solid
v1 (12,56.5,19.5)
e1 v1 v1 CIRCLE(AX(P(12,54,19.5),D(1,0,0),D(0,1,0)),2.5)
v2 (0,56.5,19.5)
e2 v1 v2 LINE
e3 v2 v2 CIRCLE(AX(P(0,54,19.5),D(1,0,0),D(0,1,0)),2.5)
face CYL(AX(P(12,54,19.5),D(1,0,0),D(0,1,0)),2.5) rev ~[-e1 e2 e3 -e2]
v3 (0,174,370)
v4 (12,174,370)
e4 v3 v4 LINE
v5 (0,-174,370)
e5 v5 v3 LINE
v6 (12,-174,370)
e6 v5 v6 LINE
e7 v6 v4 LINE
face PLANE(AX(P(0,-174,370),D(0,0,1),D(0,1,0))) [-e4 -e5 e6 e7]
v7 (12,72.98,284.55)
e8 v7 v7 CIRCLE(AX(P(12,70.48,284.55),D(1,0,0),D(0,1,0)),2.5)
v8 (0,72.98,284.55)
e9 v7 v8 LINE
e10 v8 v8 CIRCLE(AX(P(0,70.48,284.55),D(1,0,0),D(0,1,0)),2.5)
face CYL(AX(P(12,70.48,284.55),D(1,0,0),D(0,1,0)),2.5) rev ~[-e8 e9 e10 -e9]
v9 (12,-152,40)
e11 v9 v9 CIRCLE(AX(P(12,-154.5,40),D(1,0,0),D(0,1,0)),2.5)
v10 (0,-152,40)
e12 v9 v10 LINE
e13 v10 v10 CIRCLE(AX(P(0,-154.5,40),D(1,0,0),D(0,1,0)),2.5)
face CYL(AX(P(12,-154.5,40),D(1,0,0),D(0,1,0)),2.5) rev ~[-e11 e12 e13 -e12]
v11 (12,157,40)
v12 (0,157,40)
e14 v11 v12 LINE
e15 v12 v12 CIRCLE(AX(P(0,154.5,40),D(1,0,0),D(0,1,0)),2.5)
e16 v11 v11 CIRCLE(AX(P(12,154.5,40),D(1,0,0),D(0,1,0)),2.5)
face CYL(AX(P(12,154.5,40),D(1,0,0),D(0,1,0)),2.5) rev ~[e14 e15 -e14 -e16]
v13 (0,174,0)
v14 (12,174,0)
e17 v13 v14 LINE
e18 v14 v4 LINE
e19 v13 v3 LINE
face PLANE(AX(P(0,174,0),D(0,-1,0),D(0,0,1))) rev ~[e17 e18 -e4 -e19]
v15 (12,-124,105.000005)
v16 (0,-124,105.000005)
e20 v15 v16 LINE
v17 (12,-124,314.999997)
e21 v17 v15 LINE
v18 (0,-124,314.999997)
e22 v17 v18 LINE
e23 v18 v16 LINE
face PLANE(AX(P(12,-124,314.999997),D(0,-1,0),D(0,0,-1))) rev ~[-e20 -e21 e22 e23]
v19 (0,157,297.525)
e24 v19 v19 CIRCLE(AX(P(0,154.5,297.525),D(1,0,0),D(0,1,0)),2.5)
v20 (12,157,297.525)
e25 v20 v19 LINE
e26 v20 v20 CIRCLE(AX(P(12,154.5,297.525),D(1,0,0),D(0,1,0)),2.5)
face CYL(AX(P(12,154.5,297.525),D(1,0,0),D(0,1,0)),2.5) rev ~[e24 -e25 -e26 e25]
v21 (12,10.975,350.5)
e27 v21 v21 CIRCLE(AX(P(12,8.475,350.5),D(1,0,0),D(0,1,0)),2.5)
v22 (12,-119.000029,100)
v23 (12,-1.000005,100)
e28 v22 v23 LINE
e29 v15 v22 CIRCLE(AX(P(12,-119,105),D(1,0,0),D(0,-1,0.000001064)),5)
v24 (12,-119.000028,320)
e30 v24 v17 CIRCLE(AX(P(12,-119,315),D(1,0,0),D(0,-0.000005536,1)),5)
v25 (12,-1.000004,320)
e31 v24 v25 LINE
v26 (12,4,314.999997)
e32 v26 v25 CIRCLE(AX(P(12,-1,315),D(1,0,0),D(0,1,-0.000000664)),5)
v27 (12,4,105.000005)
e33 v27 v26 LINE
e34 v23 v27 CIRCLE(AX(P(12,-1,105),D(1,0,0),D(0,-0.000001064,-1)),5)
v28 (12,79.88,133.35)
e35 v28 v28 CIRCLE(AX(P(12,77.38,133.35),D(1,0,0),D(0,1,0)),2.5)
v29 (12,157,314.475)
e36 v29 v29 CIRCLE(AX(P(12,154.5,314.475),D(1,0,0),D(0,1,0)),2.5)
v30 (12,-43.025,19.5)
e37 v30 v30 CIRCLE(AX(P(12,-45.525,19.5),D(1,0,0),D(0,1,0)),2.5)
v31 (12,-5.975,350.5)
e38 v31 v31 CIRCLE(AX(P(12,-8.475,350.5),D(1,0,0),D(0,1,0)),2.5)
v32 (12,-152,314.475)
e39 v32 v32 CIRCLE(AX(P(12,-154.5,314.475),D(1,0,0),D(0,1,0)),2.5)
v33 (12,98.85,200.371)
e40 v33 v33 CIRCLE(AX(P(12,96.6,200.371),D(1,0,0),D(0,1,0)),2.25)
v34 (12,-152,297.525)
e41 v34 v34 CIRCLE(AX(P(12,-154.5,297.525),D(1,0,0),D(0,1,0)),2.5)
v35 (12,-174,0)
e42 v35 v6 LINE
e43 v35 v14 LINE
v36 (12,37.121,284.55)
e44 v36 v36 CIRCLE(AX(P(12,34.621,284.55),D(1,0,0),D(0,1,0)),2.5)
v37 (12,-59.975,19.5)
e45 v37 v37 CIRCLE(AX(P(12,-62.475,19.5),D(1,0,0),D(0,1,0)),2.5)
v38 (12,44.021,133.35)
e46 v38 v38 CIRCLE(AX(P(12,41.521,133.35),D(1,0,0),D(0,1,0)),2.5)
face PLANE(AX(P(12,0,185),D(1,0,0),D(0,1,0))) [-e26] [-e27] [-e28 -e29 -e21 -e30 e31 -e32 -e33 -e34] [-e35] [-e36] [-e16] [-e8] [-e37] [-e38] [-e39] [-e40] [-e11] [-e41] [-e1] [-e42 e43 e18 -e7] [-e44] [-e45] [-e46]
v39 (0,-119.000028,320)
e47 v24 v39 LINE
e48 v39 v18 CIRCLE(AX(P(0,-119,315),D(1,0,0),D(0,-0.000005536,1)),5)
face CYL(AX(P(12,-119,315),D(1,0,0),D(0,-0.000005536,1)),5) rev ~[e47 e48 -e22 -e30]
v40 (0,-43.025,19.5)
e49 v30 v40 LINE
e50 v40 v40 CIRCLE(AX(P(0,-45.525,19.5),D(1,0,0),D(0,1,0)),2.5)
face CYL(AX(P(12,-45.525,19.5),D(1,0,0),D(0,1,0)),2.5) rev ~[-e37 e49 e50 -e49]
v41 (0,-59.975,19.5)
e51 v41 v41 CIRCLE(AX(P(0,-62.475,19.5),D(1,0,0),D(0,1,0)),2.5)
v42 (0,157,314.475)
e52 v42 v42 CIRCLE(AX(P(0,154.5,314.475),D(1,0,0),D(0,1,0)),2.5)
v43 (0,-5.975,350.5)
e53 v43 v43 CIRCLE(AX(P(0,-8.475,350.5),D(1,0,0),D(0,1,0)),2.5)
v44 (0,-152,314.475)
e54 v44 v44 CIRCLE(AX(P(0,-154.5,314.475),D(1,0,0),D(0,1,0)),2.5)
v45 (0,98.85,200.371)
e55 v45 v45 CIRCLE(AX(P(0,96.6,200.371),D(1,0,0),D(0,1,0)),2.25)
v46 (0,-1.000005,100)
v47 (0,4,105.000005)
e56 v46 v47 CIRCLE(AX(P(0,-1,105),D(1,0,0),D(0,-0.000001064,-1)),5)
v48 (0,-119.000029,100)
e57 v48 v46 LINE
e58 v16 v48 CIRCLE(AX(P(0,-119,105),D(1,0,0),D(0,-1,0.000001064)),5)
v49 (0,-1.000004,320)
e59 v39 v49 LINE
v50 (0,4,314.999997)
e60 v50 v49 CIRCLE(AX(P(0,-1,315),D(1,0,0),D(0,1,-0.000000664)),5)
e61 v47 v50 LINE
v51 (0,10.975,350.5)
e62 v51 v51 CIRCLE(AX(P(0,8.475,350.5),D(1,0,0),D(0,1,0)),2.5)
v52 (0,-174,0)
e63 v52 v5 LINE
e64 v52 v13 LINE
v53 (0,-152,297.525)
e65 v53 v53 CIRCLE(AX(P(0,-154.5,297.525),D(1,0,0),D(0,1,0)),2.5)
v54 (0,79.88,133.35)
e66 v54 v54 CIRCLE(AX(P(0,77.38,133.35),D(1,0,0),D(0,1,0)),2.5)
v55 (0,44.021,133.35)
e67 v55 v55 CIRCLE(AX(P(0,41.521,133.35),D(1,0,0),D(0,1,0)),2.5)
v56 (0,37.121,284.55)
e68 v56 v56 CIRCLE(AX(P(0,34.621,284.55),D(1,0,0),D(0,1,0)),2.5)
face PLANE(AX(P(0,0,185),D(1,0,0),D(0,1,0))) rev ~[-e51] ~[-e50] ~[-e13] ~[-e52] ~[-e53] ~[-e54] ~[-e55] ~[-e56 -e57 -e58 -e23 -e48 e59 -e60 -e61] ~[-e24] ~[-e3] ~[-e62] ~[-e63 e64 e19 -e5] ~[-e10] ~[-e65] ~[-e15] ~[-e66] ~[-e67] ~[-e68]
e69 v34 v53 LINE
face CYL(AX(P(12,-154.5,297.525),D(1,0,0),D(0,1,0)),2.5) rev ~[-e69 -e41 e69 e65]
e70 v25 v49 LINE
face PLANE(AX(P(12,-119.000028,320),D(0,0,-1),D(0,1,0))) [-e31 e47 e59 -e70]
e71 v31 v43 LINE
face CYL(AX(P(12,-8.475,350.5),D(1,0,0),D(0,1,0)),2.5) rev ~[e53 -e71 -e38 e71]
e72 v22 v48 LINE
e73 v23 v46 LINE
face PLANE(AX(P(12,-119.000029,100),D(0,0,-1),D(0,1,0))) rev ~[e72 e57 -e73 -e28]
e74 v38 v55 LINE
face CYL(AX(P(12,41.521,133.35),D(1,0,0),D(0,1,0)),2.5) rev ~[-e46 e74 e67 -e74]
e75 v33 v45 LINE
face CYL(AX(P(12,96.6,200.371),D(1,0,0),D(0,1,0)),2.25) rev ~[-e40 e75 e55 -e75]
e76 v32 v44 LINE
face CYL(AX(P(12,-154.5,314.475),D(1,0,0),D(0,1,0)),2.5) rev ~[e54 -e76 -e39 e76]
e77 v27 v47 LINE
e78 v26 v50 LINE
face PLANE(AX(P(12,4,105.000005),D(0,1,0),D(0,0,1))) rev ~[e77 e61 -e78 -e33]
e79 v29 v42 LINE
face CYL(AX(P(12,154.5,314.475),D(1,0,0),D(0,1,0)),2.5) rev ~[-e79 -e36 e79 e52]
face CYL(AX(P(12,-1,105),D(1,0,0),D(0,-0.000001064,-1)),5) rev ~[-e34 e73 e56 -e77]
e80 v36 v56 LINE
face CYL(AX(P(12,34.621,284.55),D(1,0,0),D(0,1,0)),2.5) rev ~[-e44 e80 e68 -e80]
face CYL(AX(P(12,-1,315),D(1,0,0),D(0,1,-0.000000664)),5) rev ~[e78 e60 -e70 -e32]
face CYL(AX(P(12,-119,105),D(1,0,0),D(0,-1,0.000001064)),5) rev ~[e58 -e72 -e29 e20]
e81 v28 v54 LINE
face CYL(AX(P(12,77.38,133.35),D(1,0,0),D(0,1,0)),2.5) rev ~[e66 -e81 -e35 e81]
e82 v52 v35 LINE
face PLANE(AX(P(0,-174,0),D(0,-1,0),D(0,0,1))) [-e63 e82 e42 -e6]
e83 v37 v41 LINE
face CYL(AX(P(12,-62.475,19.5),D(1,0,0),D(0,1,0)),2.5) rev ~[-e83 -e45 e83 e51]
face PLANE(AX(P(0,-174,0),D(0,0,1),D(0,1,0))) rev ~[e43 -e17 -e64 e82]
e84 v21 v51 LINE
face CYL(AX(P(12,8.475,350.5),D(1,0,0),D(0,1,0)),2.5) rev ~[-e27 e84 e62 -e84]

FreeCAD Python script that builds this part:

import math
import FreeCAD as App
import Part
import Sketcher

doc = App.newDocument("Part")
body = doc.addObject("PartDesign::Body", "Body")

sketch1 = body.newObject("Sketcher::SketchObject", "Sketch")
sketch1.AttachmentSupport = (doc.getObject("YZ_Plane"), [""])
sketch1.MapMode = "FlatFace"
sketch1.addGeometry([
    Part.LineSegment(App.Vector(-174, 370, 0), App.Vector(-174, 0, 0)),
    Part.LineSegment(App.Vector(-174, 0, 0), App.Vector(174, 0, 0)),
    Part.LineSegment(App.Vector(174, 0, 0), App.Vector(174, 370, 0)),
    Part.LineSegment(App.Vector(174, 370, 0), App.Vector(-174, 370, 0)),
], False)
sketch1.addConstraint([
    Sketcher.Constraint("Coincident", 0, 2, 1, 1),
    Sketcher.Constraint("Coincident", 1, 2, 2, 1),
    Sketcher.Constraint("Coincident", 2, 2, 3, 1),
    Sketcher.Constraint("Coincident", 3, 2, 0, 1),
    Sketcher.Constraint("Vertical", 0),
    Sketcher.Constraint("Horizontal", 1),
    Sketcher.Constraint("Vertical", 2),
    Sketcher.Constraint("Horizontal", 3),
    Sketcher.Constraint("Symmetric", 0, 2, 1, 2, -1, 1),
    Sketcher.Constraint("DistanceX", 1, 1, 1, 2, 348.0),
    Sketcher.Constraint("DistanceY", 0, 2, 0, 1, 370.0),
])
pad1 = body.newObject("PartDesign::Pad", "Pad")
pad1.Profile = sketch1
pad1.Length = 12

sketch2 = body.newObject("Sketcher::SketchObject", "Sketch001")
sketch2.AttachmentSupport = (doc.getObject("YZ_Plane"), [""])
sketch2.MapMode = "FlatFace"
sketch2.AttachmentOffset = App.Placement(App.Vector(0, 0, 12), App.Rotation())
sketch2.addGeometry([
    Part.LineSegment(App.Vector(-124, 315, 0), App.Vector(-124, 105, 0)),
    Part.ArcOfCircle(Part.Circle(App.Vector(-119, 105, 0), App.Vector(0, 0, 1), 5), math.radians(180), math.radians(270)),
    Part.LineSegment(App.Vector(-119, 100, 0), App.Vector(-1, 100, 0)),
    Part.ArcOfCircle(Part.Circle(App.Vector(-1, 105, 0), App.Vector(0, 0, 1), 5), math.radians(-90), math.radians(0)),
    Part.LineSegment(App.Vector(4, 105, 0), App.Vector(4, 315, 0)),
    Part.ArcOfCircle(Part.Circle(App.Vector(-1, 315, 0), App.Vector(0, 0, 1), 5), math.radians(0), math.radians(90)),
    Part.LineSegment(App.Vector(-1, 320, 0), App.Vector(-119, 320, 0)),
    Part.ArcOfCircle(Part.Circle(App.Vector(-119, 315, 0), App.Vector(0, 0, 1), 5), math.radians(90), math.radians(180)),
], False)
sketch2.addConstraint([
    Sketcher.Constraint("Tangent", 0, 2, 1, 1),
    Sketcher.Constraint("Coincident", 1, 2, 2, 1),
    Sketcher.Constraint("Tangent", 2, 2, 3, 1),
    Sketcher.Constraint("Tangent", 3, 2, 4, 1),
    Sketcher.Constraint("Tangent", 4, 2, 5, 1),
    Sketcher.Constraint("Tangent", 5, 2, 6, 1),
    Sketcher.Constraint("Coincident", 6, 2, 7, 1),
    Sketcher.Constraint("Tangent", 7, 2, 0, 1),
    Sketcher.Constraint("Vertical", 0),
    Sketcher.Constraint("Horizontal", 2),
    Sketcher.Constraint("Vertical", 4),
    Sketcher.Constraint("Horizontal", 6),
    Sketcher.Constraint("Equal", 1, 3),
    Sketcher.Constraint("Equal", 3, 5),
    Sketcher.Constraint("Equal", 5, 7),
    Sketcher.Constraint("Vertical", 1, 2, 6, 2),
    Sketcher.Constraint("Radius", 1, 5.0),
    Sketcher.Constraint("DistanceX", 1, 3, -1, 1, 119.0),
    Sketcher.Constraint("DistanceY", -1, 1, 1, 3, 105.0),
    Sketcher.Constraint("DistanceX", 3, 3, -1, 1, 1.0),
    Sketcher.Constraint("DistanceY", -1, 1, 5, 3, 315.0),
    Sketcher.Constraint("DistanceX", 2, 1, 2, 2, 118.000024),
])
pocket1 = body.newObject("PartDesign::Pocket", "Pocket")
pocket1.Profile = sketch2
pocket1.Type = "ThroughAll"

sketch3 = body.newObject("Sketcher::SketchObject", "Sketch002")
sketch3.AttachmentSupport = (doc.getObject("YZ_Plane"), [""])
sketch3.MapMode = "FlatFace"
sketch3.AttachmentOffset = App.Placement(App.Vector(0, 0, 12), App.Rotation())
sketch3.addGeometry([
    Part.Circle(App.Vector(-154.5, 314.5, 0), App.Vector(0, 0, 1), 2.5),
    Part.Circle(App.Vector(-154.5, 40, 0), App.Vector(0, 0, 1), 2.5),
    Part.Circle(App.Vector(-62.5, 19.5, 0), App.Vector(0, 0, 1), 2.5),
    Part.Circle(App.Vector(-8.5, 350.5, 0), App.Vector(0, 0, 1), 2.5),
    Part.Circle(App.Vector(-154.5, 297.5, 0), App.Vector(0, 0, 1), 2.5),
    Part.Circle(App.Vector(-45.5, 19.5, 0), App.Vector(0, 0, 1), 2.5),
    Part.Circle(App.Vector(154.5, 314.5, 0), App.Vector(0, 0, 1), 2.5),
    Part.Circle(App.Vector(154.5, 297.5, 0), App.Vector(0, 0, 1), 2.5),
    Part.Circle(App.Vector(154.5, 40, 0), App.Vector(0, 0, 1), 2.5),
    Part.Circle(App.Vector(54, 19.5, 0), App.Vector(0, 0, 1), 2.5),
    Part.Circle(App.Vector(8.5, 350.5, 0), App.Vector(0, 0, 1), 2.5),
], False)
sketch3.addConstraint([
    Sketcher.Constraint("Equal", 0, 1),
    Sketcher.Constraint("Equal", 1, 2),
    Sketcher.Constraint("Equal", 2, 3),
    Sketcher.Constraint("Equal", 3, 4),
    Sketcher.Constraint("Equal", 4, 5),
    Sketcher.Constraint("Equal", 5, 6),
    Sketcher.Constraint("Equal", 6, 7),
    Sketcher.Constraint("Equal", 7, 8),
    Sketcher.Constraint("Equal", 8, 9),
    Sketcher.Constraint("Equal", 9, 10),
    Sketcher.Constraint("Symmetric", 0, 3, 6, 3, -2),
    Sketcher.Constraint("Symmetric", 4, 3, 7, 3, -2),
    Sketcher.Constraint("Symmetric", 1, 3, 8, 3, -2),
    Sketcher.Constraint("Symmetric", 3, 3, 10, 3, -2),
    Sketcher.Constraint("Horizontal", 2, 3, 5, 3),
    Sketcher.Constraint("Horizontal", 5, 3, 9, 3),
    Sketcher.Constraint("Vertical", 0, 3, 1, 3),
    Sketcher.Constraint("Vertical", 1, 3, 4, 3),
    Sketcher.Constraint("Diameter", 0, 5.0),
    Sketcher.Constraint("DistanceY", -1, 1, 1, 3, 40.0),
    Sketcher.Constraint("DistanceX", -1, 1, 9, 3, 54.0),
    Sketcher.Constraint("DistanceX", 2, 3, 3, 3, 54.0),
    Sketcher.Constraint("DistanceY", 2, 3, 3, 3, 331.0),
    Sketcher.Constraint("DistanceX", 0, 3, 6, 3, 309.0),
    Sketcher.Constraint("DistanceY", -1, 1, 2, 3, 19.5),
    Sketcher.Constraint("DistanceY", 4, 3, 0, 3, 16.95),
    Sketcher.Constraint("DistanceX", 2, 3, 5, 3, 16.95),
    Sketcher.Constraint("DistanceX", 3, 3, 10, 3, 16.95),
    Sketcher.Constraint("DistanceY", -1, 1, 0, 3, 314.475),
])
pocket2 = body.newObject("PartDesign::Pocket", "Pocket001")
pocket2.Profile = sketch3
pocket2.Type = "ThroughAll"

sketch4 = body.newObject("Sketcher::SketchObject", "Sketch003")
sketch4.AttachmentSupport = (doc.getObject("YZ_Plane"), [""])
sketch4.MapMode = "FlatFace"
sketch4.AttachmentOffset = App.Placement(App.Vector(0, 0, 12), App.Rotation())
sketch4.addGeometry([
    Part.Circle(App.Vector(41.5, 133.3, 0), App.Vector(0, 0, 1), 2.5),
    Part.Circle(App.Vector(77.4, 133.3, 0), App.Vector(0, 0, 1), 2.5),
    Part.Circle(App.Vector(34.6, 284.6, 0), App.Vector(0, 0, 1), 2.5),
    Part.Circle(App.Vector(70.5, 284.6, 0), App.Vector(0, 0, 1), 2.5),
    Part.Circle(App.Vector(96.6, 200.4, 0), App.Vector(0, 0, 1), 2.2),
], False)
sketch4.addConstraint([
    Sketcher.Constraint("Equal", 0, 1),
    Sketcher.Constraint("Equal", 1, 2),
    Sketcher.Constraint("Equal", 2, 3),
    Sketcher.Constraint("Horizontal", 0, 3, 1, 3),
    Sketcher.Constraint("Horizontal", 2, 3, 3, 3),
    Sketcher.Constraint("Diameter", 0, 5.0),
    Sketcher.Constraint("Diameter", 4, 4.5),
    Sketcher.Constraint("DistanceX", -1, 1, 4, 3, 96.6),
    Sketcher.Constraint("DistanceX", 2, 3, 0, 3, 6.9),
    Sketcher.Constraint("DistanceY", 0, 3, 2, 3, 151.2),
    Sketcher.Constraint("DistanceX", 3, 3, 1, 3, 6.9),
    Sketcher.Constraint("DistanceY", -1, 1, 0, 3, 133.35),
    Sketcher.Constraint("DistanceX", -1, 1, 1, 3, 77.38),
    Sketcher.Constraint("DistanceX", -1, 1, 0, 3, 41.521),
    Sketcher.Constraint("DistanceY", -1, 1, 4, 3, 200.371),
])
pocket3 = body.newObject("PartDesign::Pocket", "Pocket002")
pocket3.Profile = sketch4
pocket3.Type = "ThroughAll"

doc.recompute()
